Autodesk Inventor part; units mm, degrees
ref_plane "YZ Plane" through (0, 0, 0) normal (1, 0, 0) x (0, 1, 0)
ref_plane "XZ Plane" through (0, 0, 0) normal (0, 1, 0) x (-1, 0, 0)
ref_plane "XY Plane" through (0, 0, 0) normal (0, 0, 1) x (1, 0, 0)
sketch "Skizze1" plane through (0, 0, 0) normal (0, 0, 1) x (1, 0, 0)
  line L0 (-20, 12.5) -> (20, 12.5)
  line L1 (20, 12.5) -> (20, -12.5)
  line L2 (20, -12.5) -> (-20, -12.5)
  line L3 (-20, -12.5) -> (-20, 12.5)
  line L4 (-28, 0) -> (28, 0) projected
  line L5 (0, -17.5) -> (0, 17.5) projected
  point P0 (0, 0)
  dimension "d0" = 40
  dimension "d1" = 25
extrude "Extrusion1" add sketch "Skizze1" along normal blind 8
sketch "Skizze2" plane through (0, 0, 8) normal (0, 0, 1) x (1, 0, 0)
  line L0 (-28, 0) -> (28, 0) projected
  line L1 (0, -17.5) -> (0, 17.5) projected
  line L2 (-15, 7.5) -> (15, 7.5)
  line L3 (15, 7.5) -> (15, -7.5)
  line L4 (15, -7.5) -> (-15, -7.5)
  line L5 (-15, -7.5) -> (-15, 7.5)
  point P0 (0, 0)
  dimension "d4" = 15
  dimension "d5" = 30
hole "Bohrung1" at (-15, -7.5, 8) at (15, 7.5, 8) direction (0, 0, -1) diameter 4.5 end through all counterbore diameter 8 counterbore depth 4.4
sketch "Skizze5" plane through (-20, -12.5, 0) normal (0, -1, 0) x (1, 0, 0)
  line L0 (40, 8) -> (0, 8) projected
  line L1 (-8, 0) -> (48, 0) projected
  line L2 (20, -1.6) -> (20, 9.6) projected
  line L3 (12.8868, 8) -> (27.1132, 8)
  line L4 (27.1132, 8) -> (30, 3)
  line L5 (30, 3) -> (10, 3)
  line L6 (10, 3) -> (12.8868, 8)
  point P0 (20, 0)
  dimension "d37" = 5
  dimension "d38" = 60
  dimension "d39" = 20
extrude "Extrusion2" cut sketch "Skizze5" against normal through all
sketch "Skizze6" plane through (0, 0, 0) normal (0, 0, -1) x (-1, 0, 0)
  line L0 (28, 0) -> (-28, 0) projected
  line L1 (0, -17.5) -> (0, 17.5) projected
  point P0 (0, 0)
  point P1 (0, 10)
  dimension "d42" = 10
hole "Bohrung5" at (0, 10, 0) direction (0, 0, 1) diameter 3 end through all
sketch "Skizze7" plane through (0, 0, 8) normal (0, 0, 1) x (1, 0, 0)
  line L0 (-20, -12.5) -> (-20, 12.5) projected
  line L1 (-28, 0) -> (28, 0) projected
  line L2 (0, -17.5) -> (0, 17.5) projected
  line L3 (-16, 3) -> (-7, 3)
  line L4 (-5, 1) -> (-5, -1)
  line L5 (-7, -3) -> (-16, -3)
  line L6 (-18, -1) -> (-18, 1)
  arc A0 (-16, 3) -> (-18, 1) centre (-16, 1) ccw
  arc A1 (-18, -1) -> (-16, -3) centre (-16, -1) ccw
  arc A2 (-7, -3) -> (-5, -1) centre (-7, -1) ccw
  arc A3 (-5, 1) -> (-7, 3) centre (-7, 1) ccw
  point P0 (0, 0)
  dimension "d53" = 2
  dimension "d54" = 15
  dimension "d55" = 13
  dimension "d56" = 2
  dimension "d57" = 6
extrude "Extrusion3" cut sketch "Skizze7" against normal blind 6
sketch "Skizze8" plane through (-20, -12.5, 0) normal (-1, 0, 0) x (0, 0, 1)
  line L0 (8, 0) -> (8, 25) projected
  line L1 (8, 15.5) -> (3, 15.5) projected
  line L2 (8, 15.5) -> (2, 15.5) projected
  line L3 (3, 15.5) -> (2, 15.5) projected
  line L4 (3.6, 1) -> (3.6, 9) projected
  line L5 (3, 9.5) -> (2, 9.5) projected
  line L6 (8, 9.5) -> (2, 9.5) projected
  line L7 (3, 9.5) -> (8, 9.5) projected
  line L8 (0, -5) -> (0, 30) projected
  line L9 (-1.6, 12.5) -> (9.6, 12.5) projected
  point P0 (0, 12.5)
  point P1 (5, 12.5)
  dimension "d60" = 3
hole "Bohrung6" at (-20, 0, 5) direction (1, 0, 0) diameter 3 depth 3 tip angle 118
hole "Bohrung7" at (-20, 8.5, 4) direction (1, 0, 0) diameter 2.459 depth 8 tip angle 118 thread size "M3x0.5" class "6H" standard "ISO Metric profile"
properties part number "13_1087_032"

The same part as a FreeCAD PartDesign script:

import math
import FreeCAD as App
import Part
import Sketcher

V = App.Vector
Q = App.Units.Quantity

doc = App.newDocument("Part")
params = doc.addObject("Spreadsheet::Sheet", "Params")
for row, (alias, value) in enumerate([
    ("sketch1_width", "40 mm"),
    ("sketch1_height", "25 mm"),
    ("pad1_length", "8 mm"),
    ("sketch2_diameter", "4.5 mm"),
    ("hole_diameter", "4.5 mm"),
    ("hole_cbore_diameter", "8 mm"),
    ("hole_cbore_depth", "4.4 mm"),
    ("sketch3_width", "20 mm"),
    ("sketch4_diameter", "3 mm"),
    ("hole2_diameter", "3 mm"),
    ("sketch5_radius", "2 mm"),
    ("sketch5_height", "2 mm"),
    ("sketch5_width", "9 mm"),
    ("pocket2_length", "6 mm"),
    ("sketch6_diameter", "3 mm"),
    ("hole3_diameter", "3 mm"),
    ("hole3_depth", "3 mm"),
    ("hole4_diameter", "2.459 mm"),
    ("hole4_depth", "8 mm"),
], start=1):
    params.set(f"A{row}", alias)
    params.set(f"B{row}", "=" + value)
    params.setAlias(f"B{row}", alias)

body = doc.addObject("PartDesign::Body", "Body")

# Sketch on XY plane
sketch1 = body.newObject("Sketcher::SketchObject", "Sketch")
sketch1.AttachmentSupport = (doc.getObject("XY_Plane"), [""])
sketch1.MapMode = "FlatFace"
sketch1.addGeometry([
    Part.LineSegment(V(-20, 12, 0), V(-20, -12, 0)),
    Part.LineSegment(V(-20, -12, 0), V(20, -12, 0)),
    Part.LineSegment(V(20, -12, 0), V(20, 12, 0)),
    Part.LineSegment(V(20, 12, 0), V(-20, 12, 0)),
], False)
sketch1.addConstraint([
    Sketcher.Constraint("Coincident", 0, 2, 1, 1),
    Sketcher.Constraint("Coincident", 1, 2, 2, 1),
    Sketcher.Constraint("Coincident", 2, 2, 3, 1),
    Sketcher.Constraint("Coincident", 3, 2, 0, 1),
    Sketcher.Constraint("Vertical", 0),
    Sketcher.Constraint("Horizontal", 1),
    Sketcher.Constraint("Vertical", 2),
    Sketcher.Constraint("Horizontal", 3),
    Sketcher.Constraint("Symmetric", 0, 2, 2, 2, -1, 1),
    Sketcher.Constraint("DistanceX", 1, 1, 1, 2, Q("40 mm")),
    Sketcher.Constraint("DistanceY", 0, 2, 0, 1, Q("25 mm")),
])
sketch1.setExpression("Constraints[9]", "Params.sketch1_width")
sketch1.setExpression("Constraints[10]", "Params.sketch1_height")
pad1 = body.newObject("PartDesign::Pad", "Pad")
pad1.Profile = sketch1
pad1.setExpression("Length", "Params.pad1_length")

# Sketch on XY plane
sketch2 = body.newObject("Sketcher::SketchObject", "Sketch001")
sketch2.AttachmentSupport = (doc.getObject("XY_Plane"), [""])
sketch2.MapMode = "FlatFace"
sketch2.AttachmentOffset = App.Placement(V(0, 0, 8), App.Rotation())
sketch2.addGeometry([
    Part.Circle(V(-15, -7.5, 0), V(0, 0, 1), 2.2),
    Part.Circle(V(15, 7.5, 0), V(0, 0, 1), 2.2),
], False)
sketch2.addConstraint([
    Sketcher.Constraint("Equal", 0, 1),
    Sketcher.Constraint("Symmetric", 0, 3, 1, 3, -1, 1),
    Sketcher.Constraint("Diameter", 0, Q("4.5 mm")),
    Sketcher.Constraint("DistanceX", 0, 3, -1, 1, Q("15 mm")),
    Sketcher.Constraint("DistanceY", 0, 3, 1, 3, Q("15 mm")),
])
sketch2.setExpression("Constraints[2]", "Params.sketch2_diameter")
doc.recompute()
hole = body.newObject("PartDesign::Hole", "Hole")
hole.Profile = sketch2
hole.ThreadType = "None"
hole.setExpression("Diameter", "Params.hole_diameter")
hole.DepthType = "ThroughAll"
hole.HoleCutType = "Counterbore"
hole.setExpression("HoleCutDiameter", "Params.hole_cbore_diameter")
hole.setExpression("HoleCutDepth", "Params.hole_cbore_depth")

# Sketch on XZ plane
sketch3 = body.newObject("Sketcher::SketchObject", "Sketch002")
sketch3.AttachmentSupport = (doc.getObject("XZ_Plane"), [""])
sketch3.MapMode = "FlatFace"
sketch3.AttachmentOffset = App.Placement(V(0, 0, 12.5), App.Rotation())
sketch3.addGeometry([
    Part.LineSegment(V(10, 3, 0), V(7, 8, 0)),
    Part.LineSegment(V(7, 8, 0), V(-7, 8, 0)),
    Part.LineSegment(V(-7, 8, 0), V(-10, 3, 0)),
    Part.LineSegment(V(-10, 3, 0), V(10, 3, 0)),
], False)
sketch3.addConstraint([
    Sketcher.Constraint("Coincident", 0, 2, 1, 1),
    Sketcher.Constraint("Coincident", 1, 2, 2, 1),
    Sketcher.Constraint("Coincident", 2, 2, 3, 1),
    Sketcher.Constraint("Coincident", 3, 2, 0, 1),
    Sketcher.Constraint("Horizontal", 1),
    Sketcher.Constraint("Horizontal", 3),
    Sketcher.Constraint("Equal", 0, 2),
    Sketcher.Constraint("DistanceX", 3, 1, 3, 2, Q("20 mm")),
    Sketcher.Constraint("DistanceY", 2, 2, 1, 2, Q("5 mm")),
    Sketcher.Constraint("Angle", 0, Q("120.0004 deg")),
    Sketcher.Constraint("DistanceY", -1, 1, 0, 2, Q("8 mm")),
    Sketcher.Constraint("DistanceX", 2, 2, -1, 1, Q("10 mm")),
])
sketch3.setExpression("Constraints[7]", "Params.sketch3_width")
pocket1 = body.newObject("PartDesign::Pocket", "Pocket")
pocket1.Profile = sketch3
pocket1.Type = "ThroughAll"

# Sketch on XY plane
sketch4 = body.newObject("Sketcher::SketchObject", "Sketch003")
sketch4.AttachmentSupport = (doc.getObject("XY_Plane"), [""])
sketch4.MapMode = "FlatFace"
sketch4.addGeometry(Part.Circle(V(0, 10, 0), V(0, 0, 1), 1.5), False)
sketch4.addConstraint([
    Sketcher.Constraint("PointOnObject", 0, 3, -2),
    Sketcher.Constraint("Diameter", 0, Q("3 mm")),
    Sketcher.Constraint("DistanceY", -1, 1, 0, 3, Q("10 mm")),
])
sketch4.setExpression("Constraints[1]", "Params.sketch4_diameter")
doc.recompute()
hole2 = body.newObject("PartDesign::Hole", "Hole001")
hole2.Profile = sketch4
hole2.ThreadType = "None"
hole2.setExpression("Diameter", "Params.hole2_diameter")
hole2.DepthType = "ThroughAll"
hole2.Reversed = True

# Sketch on XY plane
sketch5 = body.newObject("Sketcher::SketchObject", "Sketch004")
sketch5.AttachmentSupport = (doc.getObject("XY_Plane"), [""])
sketch5.MapMode = "FlatFace"
sketch5.AttachmentOffset = App.Placement(V(0, 0, 8), App.Rotation())
sketch5.addGeometry([
    Part.LineSegment(V(-18, 1, 0), V(-18, -1, 0)),  # 0
    Part.ArcOfCircle(Part.Circle(V(-16, -1, 0), V(0, 0, 1), 2), math.radians(180), math.radians(270)),  # 1
    Part.LineSegment(V(-16, -3, 0), V(-7, -3, 0)),  # 2
    Part.ArcOfCircle(Part.Circle(V(-7, -1, 0), V(0, 0, 1), 2), math.radians(-90), math.radians(0)),  # 3
    Part.LineSegment(V(-5, -1, 0), V(-5, 1, 0)),  # 4
    Part.ArcOfCircle(Part.Circle(V(-7, 1, 0), V(0, 0, 1), 2), math.radians(0), math.radians(90)),  # 5
    Part.LineSegment(V(-7, 3, 0), V(-16, 3, 0)),  # 6
    Part.ArcOfCircle(Part.Circle(V(-16, 1, 0), V(0, 0, 1), 2), math.radians(90), math.radians(180)),  # 7
], False)
sketch5.addConstraint([
    Sketcher.Constraint("Tangent", 0, 2, 1, 1),
    Sketcher.Constraint("Tangent", 1, 2, 2, 1),
    Sketcher.Constraint("Tangent", 2, 2, 3, 1),
    Sketcher.Constraint("Tangent", 3, 2, 4, 1),
    Sketcher.Constraint("Tangent", 4, 2, 5, 1),
    Sketcher.Constraint("Tangent", 5, 2, 6, 1),
    Sketcher.Constraint("Tangent", 6, 2, 7, 1),
    Sketcher.Constraint("Tangent", 7, 2, 0, 1),
    Sketcher.Constraint("Vertical", 0),
    Sketcher.Constraint("Horizontal", 2),
    Sketcher.Constraint("Vertical", 4),
    Sketcher.Constraint("Horizontal", 6),
    Sketcher.Constraint("Equal", 1, 3),
    Sketcher.Constraint("Equal", 3, 5),
    Sketcher.Constraint("Equal", 5, 7),
    Sketcher.Constraint("Radius", 1, Q("2 mm")),
    Sketcher.Constraint("DistanceY", 0, 2, 0, 1, Q("2 mm")),
    Sketcher.Constraint("DistanceX", 2, 1, 2, 2, Q("9 mm")),
    Sketcher.Constraint("DistanceX", 1, 3, -1, 1, Q("16 mm")),
    Sketcher.Constraint("DistanceY", 1, 3, -1, 1, Q("1 mm")),
])
sketch5.setExpression("Constraints[15]", "Params.sketch5_radius")
sketch5.setExpression("Constraints[16]", "Params.sketch5_height")
sketch5.setExpression("Constraints[17]", "Params.sketch5_width")
pocket2 = body.newObject("PartDesign::Pocket", "Pocket001")
pocket2.Profile = sketch5
pocket2.setExpression("Length", "Params.pocket2_length")

# Sketch on YZ plane
sketch6 = body.newObject("Sketcher::SketchObject", "Sketch005")
sketch6.AttachmentSupport = (doc.getObject("YZ_Plane"), [""])
sketch6.MapMode = "FlatFace"
sketch6.AttachmentOffset = App.Placement(V(0, 0, -20), App.Rotation())
sketch6.addGeometry(Part.Circle(V(0, 5, 0), V(0, 0, 1), 1.5), False)
sketch6.addConstraint([
    Sketcher.Constraint("PointOnObject", 0, 3, -2),
    Sketcher.Constraint("Diameter", 0, Q("3 mm")),
    Sketcher.Constraint("DistanceY", -1, 1, 0, 3, Q("5 mm")),
])
sketch6.setExpression("Constraints[1]", "Params.sketch6_diameter")
doc.recompute()
hole3 = body.newObject("PartDesign::Hole", "Hole002")
hole3.Profile = sketch6
hole3.ThreadType = "None"
hole3.setExpression("Diameter", "Params.hole3_diameter")
hole3.DepthType = "Dimension"
hole3.setExpression("Depth", "Params.hole3_depth")
hole3.DrillPoint = "Angled"
hole3.DrillPointAngle = 118
hole3.Reversed = True

# Sketch on YZ plane
sketch7 = body.newObject("Sketcher::SketchObject", "Sketch006")
sketch7.AttachmentSupport = (doc.getObject("YZ_Plane"), [""])
sketch7.MapMode = "FlatFace"
sketch7.AttachmentOffset = App.Placement(V(0, 0, -20), App.Rotation())
sketch7.addGeometry(Part.Circle(V(8.5, 4, 0), V(0, 0, 1), 1.2), False)
sketch7.addConstraint([
    Sketcher.Constraint("Diameter", 0, Q("2.459 mm")),
    Sketcher.Constraint("DistanceY", -1, 1, 0, 3, Q("4 mm")),
    Sketcher.Constraint("DistanceX", -1, 1, 0, 3, Q("8.5 mm")),
])
doc.recompute()
hole4 = body.newObject("PartDesign::Hole", "Hole003")
hole4.Profile = sketch7
hole4.ThreadType = "None"
hole4.setExpression("Diameter", "Params.hole4_diameter")
hole4.DepthType = "Dimension"
hole4.setExpression("Depth", "Params.hole4_depth")
hole4.DrillPoint = "Angled"
hole4.DrillPointAngle = 118
hole4.Reversed = True

doc.recompute()
